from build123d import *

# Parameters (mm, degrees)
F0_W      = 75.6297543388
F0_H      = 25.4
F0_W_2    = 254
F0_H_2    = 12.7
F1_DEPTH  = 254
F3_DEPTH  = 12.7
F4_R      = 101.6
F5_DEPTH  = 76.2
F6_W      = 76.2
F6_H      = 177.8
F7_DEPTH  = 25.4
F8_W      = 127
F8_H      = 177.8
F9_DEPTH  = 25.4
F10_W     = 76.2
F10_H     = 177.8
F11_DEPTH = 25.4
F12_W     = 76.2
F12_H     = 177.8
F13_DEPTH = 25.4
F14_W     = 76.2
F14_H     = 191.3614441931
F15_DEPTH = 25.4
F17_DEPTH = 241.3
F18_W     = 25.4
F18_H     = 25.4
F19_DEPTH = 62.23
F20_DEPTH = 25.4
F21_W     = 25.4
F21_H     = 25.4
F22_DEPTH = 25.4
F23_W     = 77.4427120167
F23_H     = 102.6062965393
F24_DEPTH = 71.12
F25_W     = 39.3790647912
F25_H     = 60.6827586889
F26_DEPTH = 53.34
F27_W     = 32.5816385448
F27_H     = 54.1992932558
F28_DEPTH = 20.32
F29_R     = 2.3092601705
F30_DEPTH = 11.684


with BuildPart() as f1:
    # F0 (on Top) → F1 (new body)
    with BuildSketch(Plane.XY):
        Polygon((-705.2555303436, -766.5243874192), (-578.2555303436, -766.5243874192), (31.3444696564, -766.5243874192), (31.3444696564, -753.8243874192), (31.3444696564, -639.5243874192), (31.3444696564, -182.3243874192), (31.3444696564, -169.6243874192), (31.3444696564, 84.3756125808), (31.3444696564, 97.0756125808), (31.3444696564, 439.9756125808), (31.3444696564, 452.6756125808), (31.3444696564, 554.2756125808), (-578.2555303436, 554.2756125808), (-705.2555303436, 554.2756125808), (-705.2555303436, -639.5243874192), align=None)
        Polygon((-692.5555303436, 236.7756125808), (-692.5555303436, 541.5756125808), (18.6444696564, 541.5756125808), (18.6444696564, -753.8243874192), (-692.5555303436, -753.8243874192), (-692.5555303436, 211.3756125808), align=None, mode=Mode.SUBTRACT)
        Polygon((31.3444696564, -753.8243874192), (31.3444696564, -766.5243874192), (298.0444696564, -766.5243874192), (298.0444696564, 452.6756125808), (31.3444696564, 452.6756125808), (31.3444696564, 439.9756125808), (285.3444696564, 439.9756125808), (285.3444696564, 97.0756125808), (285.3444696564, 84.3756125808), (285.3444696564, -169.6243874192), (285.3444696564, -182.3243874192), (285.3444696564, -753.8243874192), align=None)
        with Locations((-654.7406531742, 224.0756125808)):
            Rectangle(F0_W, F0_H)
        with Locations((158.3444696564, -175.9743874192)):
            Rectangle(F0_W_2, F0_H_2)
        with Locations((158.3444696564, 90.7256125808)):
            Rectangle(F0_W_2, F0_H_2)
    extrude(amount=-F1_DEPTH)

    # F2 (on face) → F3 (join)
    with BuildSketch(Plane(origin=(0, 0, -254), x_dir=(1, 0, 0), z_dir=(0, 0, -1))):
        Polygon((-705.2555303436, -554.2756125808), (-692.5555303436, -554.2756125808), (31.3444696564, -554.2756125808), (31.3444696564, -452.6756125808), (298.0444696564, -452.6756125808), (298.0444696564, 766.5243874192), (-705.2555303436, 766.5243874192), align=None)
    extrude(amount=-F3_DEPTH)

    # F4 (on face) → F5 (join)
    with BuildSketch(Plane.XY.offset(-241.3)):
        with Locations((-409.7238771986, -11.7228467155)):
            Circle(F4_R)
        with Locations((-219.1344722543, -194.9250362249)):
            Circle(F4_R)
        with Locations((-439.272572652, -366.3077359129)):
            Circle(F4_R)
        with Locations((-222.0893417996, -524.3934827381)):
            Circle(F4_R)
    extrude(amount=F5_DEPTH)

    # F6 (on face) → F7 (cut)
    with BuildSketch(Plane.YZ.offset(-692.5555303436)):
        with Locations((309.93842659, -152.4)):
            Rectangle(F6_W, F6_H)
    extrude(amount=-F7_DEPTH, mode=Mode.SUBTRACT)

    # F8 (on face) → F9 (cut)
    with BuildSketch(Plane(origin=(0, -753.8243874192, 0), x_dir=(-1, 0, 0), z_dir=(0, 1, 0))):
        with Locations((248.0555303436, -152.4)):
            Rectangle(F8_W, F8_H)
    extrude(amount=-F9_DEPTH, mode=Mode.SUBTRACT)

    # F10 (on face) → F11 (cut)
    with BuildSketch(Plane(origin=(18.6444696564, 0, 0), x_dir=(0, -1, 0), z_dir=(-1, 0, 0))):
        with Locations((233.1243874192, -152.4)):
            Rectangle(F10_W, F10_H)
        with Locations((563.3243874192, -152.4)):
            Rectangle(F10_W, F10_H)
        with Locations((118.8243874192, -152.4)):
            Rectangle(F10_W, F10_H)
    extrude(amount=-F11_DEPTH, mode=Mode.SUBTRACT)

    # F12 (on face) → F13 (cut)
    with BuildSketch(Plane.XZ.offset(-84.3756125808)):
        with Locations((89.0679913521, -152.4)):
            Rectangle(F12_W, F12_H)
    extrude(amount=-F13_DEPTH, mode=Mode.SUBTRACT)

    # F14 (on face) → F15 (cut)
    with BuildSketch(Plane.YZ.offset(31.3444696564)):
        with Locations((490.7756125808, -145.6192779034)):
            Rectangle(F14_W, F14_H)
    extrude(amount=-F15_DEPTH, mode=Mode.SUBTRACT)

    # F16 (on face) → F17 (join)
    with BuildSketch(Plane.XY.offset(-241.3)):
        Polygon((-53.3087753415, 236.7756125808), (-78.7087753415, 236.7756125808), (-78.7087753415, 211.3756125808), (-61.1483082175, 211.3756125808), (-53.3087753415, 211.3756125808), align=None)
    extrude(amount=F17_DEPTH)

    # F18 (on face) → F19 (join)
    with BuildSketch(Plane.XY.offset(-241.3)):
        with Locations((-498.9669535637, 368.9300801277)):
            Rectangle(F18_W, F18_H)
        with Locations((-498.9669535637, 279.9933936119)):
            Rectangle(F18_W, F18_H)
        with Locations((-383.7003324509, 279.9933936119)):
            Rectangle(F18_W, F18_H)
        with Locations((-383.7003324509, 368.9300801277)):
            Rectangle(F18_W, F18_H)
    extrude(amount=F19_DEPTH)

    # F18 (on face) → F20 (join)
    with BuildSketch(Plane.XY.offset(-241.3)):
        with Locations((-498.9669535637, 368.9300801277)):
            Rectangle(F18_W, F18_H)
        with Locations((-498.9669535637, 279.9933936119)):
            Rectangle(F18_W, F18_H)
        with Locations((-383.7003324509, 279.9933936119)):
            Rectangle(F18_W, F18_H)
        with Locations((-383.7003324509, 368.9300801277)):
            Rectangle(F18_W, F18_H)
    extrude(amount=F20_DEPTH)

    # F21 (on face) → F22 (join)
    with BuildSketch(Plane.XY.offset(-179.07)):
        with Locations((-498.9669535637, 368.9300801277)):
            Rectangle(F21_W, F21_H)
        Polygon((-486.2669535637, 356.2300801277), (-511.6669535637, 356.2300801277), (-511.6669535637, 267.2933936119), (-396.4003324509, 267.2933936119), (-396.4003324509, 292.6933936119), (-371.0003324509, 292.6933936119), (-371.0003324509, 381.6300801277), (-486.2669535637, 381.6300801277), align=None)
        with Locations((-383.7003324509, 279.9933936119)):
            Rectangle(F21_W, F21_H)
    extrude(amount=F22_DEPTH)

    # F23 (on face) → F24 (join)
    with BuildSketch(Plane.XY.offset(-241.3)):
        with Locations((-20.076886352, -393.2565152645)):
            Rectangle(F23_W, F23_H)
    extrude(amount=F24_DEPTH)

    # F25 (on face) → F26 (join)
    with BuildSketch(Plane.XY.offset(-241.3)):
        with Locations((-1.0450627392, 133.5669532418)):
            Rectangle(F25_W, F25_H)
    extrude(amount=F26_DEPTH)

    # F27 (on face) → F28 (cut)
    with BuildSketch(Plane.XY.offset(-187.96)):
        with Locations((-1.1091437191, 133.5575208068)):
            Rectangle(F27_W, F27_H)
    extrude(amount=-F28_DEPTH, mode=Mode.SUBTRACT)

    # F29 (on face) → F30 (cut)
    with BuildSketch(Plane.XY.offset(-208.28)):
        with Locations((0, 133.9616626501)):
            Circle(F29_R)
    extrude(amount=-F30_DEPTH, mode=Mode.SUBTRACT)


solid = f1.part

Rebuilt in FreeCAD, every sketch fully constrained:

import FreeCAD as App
import Part
import Sketcher
from FreeCAD import Vector
Q = App.Units.Quantity


def add_polygon(sketch, points):
    """Adds a closed chain of lines whose ends are joined by coincident constraints."""
    first, n = sketch.GeometryCount, len(points)
    for a, b in zip(points, points[1:] + points[:1]):
        sketch.addGeometry(Part.LineSegment(App.Vector(*a, 0), App.Vector(*b, 0)), False)
    for i in range(n):
        sketch.addConstraint(Sketcher.Constraint("Coincident", first + i, 2, first + (i + 1) % n, 1))

doc = App.newDocument("Part")
body = doc.addObject("PartDesign::Body", "Body")

# Sketch on XY plane
sketch1 = body.newObject("Sketcher::SketchObject", "Sketch")
sketch1.AttachmentSupport = (doc.getObject("XY_Plane"), [""])
sketch1.MapMode = "FlatFace"
add_polygon(sketch1, [(-705.25553, -766.524387), (298.04447, -766.524387), (298.04447, 452.675613), (31.34447, 452.675613), (31.34447, 554.275613), (-705.25553, 554.275613)])  # lines 0-5
add_polygon(sketch1, [(31.34447, -753.824387), (31.34447, -182.324387), (285.34447, -182.324387), (285.34447, -753.824387)])  # lines 6-9
add_polygon(sketch1, [(31.34447, -169.624387), (31.34447, 84.375613), (285.34447, 84.375613), (285.34447, -169.624387)])  # lines 10-13
add_polygon(sketch1, [(31.34447, 97.075613), (31.34447, 439.975613), (285.34447, 439.975613), (285.34447, 97.075613)])  # lines 14-17
add_polygon(sketch1, [(-692.55553, -753.824387), (-692.55553, 211.375613), (-616.925776, 211.375613), (-616.925776, 236.775613), (-692.55553, 236.775613), (-692.55553, 541.575613), (18.64447, 541.575613), (18.64447, -753.824387)])  # lines 18-25
sketch1.addConstraint(Sketcher.Constraint("Horizontal", 0))
sketch1.addConstraint(Sketcher.Constraint("Vertical", 1))
sketch1.addConstraint(Sketcher.Constraint("Horizontal", 2))
sketch1.addConstraint(Sketcher.Constraint("Vertical", 3))
sketch1.addConstraint(Sketcher.Constraint("Horizontal", 4))
sketch1.addConstraint(Sketcher.Constraint("Vertical", 5))
sketch1.addConstraint(Sketcher.Constraint("Vertical", 6))
sketch1.addConstraint(Sketcher.Constraint("Horizontal", 7))
sketch1.addConstraint(Sketcher.Constraint("Vertical", 8))
sketch1.addConstraint(Sketcher.Constraint("Horizontal", 9))
sketch1.addConstraint(Sketcher.Constraint("Vertical", 10))
sketch1.addConstraint(Sketcher.Constraint("Horizontal", 11))
sketch1.addConstraint(Sketcher.Constraint("Vertical", 12))
sketch1.addConstraint(Sketcher.Constraint("Horizontal", 13))
sketch1.addConstraint(Sketcher.Constraint("Vertical", 14))
sketch1.addConstraint(Sketcher.Constraint("Horizontal", 15))
sketch1.addConstraint(Sketcher.Constraint("Vertical", 16))
sketch1.addConstraint(Sketcher.Constraint("Horizontal", 17))
sketch1.addConstraint(Sketcher.Constraint("Vertical", 18))
sketch1.addConstraint(Sketcher.Constraint("Horizontal", 19))
sketch1.addConstraint(Sketcher.Constraint("Vertical", 20))
sketch1.addConstraint(Sketcher.Constraint("Horizontal", 21))
sketch1.addConstraint(Sketcher.Constraint("Vertical", 22))
sketch1.addConstraint(Sketcher.Constraint("Horizontal", 23))
sketch1.addConstraint(Sketcher.Constraint("Vertical", 24))
sketch1.addConstraint(Sketcher.Constraint("Horizontal", 25))
sketch1.addConstraint(Sketcher.Constraint("Horizontal", 9, 2, 24, 2))
sketch1.addConstraint(Sketcher.Constraint("Vertical", 3, 2, 6, 2))
sketch1.addConstraint(Sketcher.Constraint("Vertical", 9, 2, 10, 2))
sketch1.addConstraint(Sketcher.Constraint("Vertical", 8, 2, 11, 2))
sketch1.addConstraint(Sketcher.Constraint("Vertical", 13, 2, 14, 2))
sketch1.addConstraint(Sketcher.Constraint("Vertical", 12, 2, 15, 2))
sketch1.addConstraint(Sketcher.Constraint("Vertical", 18, 2, 21, 2))
sketch1.addConstraint(Sketcher.Constraint("Equal", 17, 10))
sketch1.addConstraint(Sketcher.Constraint("DistanceX", 4, 2, 4, 1, Q("29 in")))
sketch1.addConstraint(Sketcher.Constraint("DistanceX", 7, 1, 7, 2, Q("10 in")))
sketch1.addConstraint(Sketcher.Constraint("DistanceX", 23, 1, 23, 2, Q("28 in")))
sketch1.addConstraint(Sketcher.Constraint("DistanceY", 1, 1, 1, 2, Q("48 in")))
sketch1.addConstraint(Sketcher.Constraint("DistanceY", 3, 1, 3, 2, Q("4 in")))
sketch1.addConstraint(Sketcher.Constraint("DistanceY", 18, 1, 18, 2, Q("38 in")))
sketch1.addConstraint(Sketcher.Constraint("DistanceY", 20, 1, 20, 2, Q("1 in")))
sketch1.addConstraint(Sketcher.Constraint("DistanceY", 22, 1, 22, 2, Q("12 in")))
sketch1.addConstraint(Sketcher.Constraint("DistanceX", 0, 1, 0, 2, Q("39.5 in")))
sketch1.addConstraint(Sketcher.Constraint("DistanceY", 6, 1, 6, 2, Q("22.5 in")))
sketch1.addConstraint(Sketcher.Constraint("DistanceY", 14, 1, 14, 2, Q("13.5 in")))
sketch1.addConstraint(Sketcher.Constraint("DistanceY", 6, 2, 2, 2, Q("25 in")))
sketch1.addConstraint(Sketcher.Constraint("DistanceY", 8, 2, 12, 2, Q("23 in")))
sketch1.addConstraint(Sketcher.Constraint("DistanceY", 10, 2, 14, 2, Q("14 in")))
sketch1.addConstraint(Sketcher.Constraint("DistanceX", 23, 2, 1, 2, Q("11 in")))
sketch1.addConstraint(Sketcher.Constraint("DistanceX", 19, 1, 19, 2, Q("75.629754 mm")))
sketch1.addConstraint(Sketcher.Constraint("DistanceX", -1, 1, 0, 2, Q("298.04447 mm")))
sketch1.addConstraint(Sketcher.Constraint("DistanceY", 0, 2, -1, 1, Q("766.524387 mm")))
pad1 = body.newObject("PartDesign::Pad", "Pad")
pad1.Profile = sketch1
pad1.Length = Q("10 in")
pad1.Reversed = True

# Sketch on XY plane
sketch2 = body.newObject("Sketcher::SketchObject", "Sketch001")
sketch2.AttachmentSupport = (doc.getObject("XY_Plane"), [""])
sketch2.MapMode = "FlatFace"
sketch2.AttachmentOffset = App.Placement(Vector(0, 0, -10 * 25.4), App.Rotation())
add_polygon(sketch2, [(-705.25553, 554.275613), (31.34447, 554.275613), (31.34447, 452.675613), (298.04447, 452.675613), (298.04447, -766.524387), (-705.25553, -766.524387)])  # lines 0-5
sketch2.addConstraint(Sketcher.Constraint("Horizontal", 0))
sketch2.addConstraint(Sketcher.Constraint("Vertical", 1))
sketch2.addConstraint(Sketcher.Constraint("Horizontal", 2))
sketch2.addConstraint(Sketcher.Constraint("Vertical", 3))
sketch2.addConstraint(Sketcher.Constraint("Horizontal", 4))
sketch2.addConstraint(Sketcher.Constraint("Vertical", 5))
sketch2.addConstraint(Sketcher.Constraint("DistanceX", 0, 1, 0, 2, Q("29 in")))
sketch2.addConstraint(Sketcher.Constraint("DistanceY", 1, 2, 1, 1, Q("4 in")))
sketch2.addConstraint(Sketcher.Constraint("DistanceY", 3, 2, 3, 1, Q("48 in")))
sketch2.addConstraint(Sketcher.Constraint("DistanceX", 2, 1, 2, 2, Q("10.5 in")))
sketch2.addConstraint(Sketcher.Constraint("DistanceX", -1, 1, 0, 2, Q("31.34447 mm")))
sketch2.addConstraint(Sketcher.Constraint("DistanceY", -1, 1, 0, 2, Q("554.275613 mm")))
pad2 = body.newObject("PartDesign::Pad", "Pad001")
pad2.Profile = sketch2
pad2.Length = Q("0.5 in")

# Sketch on XY plane
sketch3 = body.newObject("Sketcher::SketchObject", "Sketch002")
sketch3.AttachmentSupport = (doc.getObject("XY_Plane"), [""])
sketch3.MapMode = "FlatFace"
sketch3.AttachmentOffset = App.Placement(Vector(0, 0, -9.5 * 25.4), App.Rotation())
sketch3.addGeometry(Part.Circle(Vector(-409.723877, -11.722847, 0), Vector(0, 0, 1), 101.6), False)
sketch3.addGeometry(Part.Circle(Vector(-219.134472, -194.925036, 0), Vector(0, 0, 1), 101.6), False)
sketch3.addGeometry(Part.Circle(Vector(-439.272573, -366.307736, 0), Vector(0, 0, 1), 101.6), False)
sketch3.addGeometry(Part.Circle(Vector(-222.089342, -524.393483, 0), Vector(0, 0, 1), 101.6), False)
sketch3.addConstraint(Sketcher.Constraint("Equal", 0, 1))
sketch3.addConstraint(Sketcher.Constraint("Equal", 1, 2))
sketch3.addConstraint(Sketcher.Constraint("Equal", 2, 3))
sketch3.addConstraint(Sketcher.Constraint("Diameter", 0, Q("8 in")))
sketch3.addConstraint(Sketcher.Constraint("DistanceX", 2, 3, 1, 3, Q("220.1381 mm")))
sketch3.addConstraint(Sketcher.Constraint("DistanceY", 2, 3, 1, 3, Q("171.3827 mm")))
sketch3.addConstraint(Sketcher.Constraint("DistanceX", 3, 3, -1, 1, Q("222.089342 mm")))
sketch3.addConstraint(Sketcher.Constraint("DistanceY", 1, 3, 0, 3, Q("183.20219 mm")))
sketch3.addConstraint(Sketcher.Constraint("DistanceX", 2, 3, 3, 3, Q("217.183231 mm")))
sketch3.addConstraint(Sketcher.Constraint("DistanceX", 0, 3, -1, 1, Q("409.723877 mm")))
sketch3.addConstraint(Sketcher.Constraint("DistanceY", 0, 3, -1, 1, Q("11.722847 mm")))
sketch3.addConstraint(Sketcher.Constraint("DistanceY", 3, 3, -1, 1, Q("524.393483 mm")))
pad3 = body.newObject("PartDesign::Pad", "Pad002")
pad3.Profile = sketch3
pad3.Length = Q("3 in")

# Sketch on YZ plane
sketch4 = body.newObject("Sketcher::SketchObject", "Sketch003")
sketch4.AttachmentSupport = (doc.getObject("YZ_Plane"), [""])
sketch4.MapMode = "FlatFace"
sketch4.AttachmentOffset = App.Placement(Vector(0, 0, -692.55553), App.Rotation())
add_polygon(sketch4, [(271.838427, -63.5), (271.838427, -241.3), (348.038427, -241.3), (348.038427, -63.5)])  # lines 0-3
sketch4.addConstraint(Sketcher.Constraint("Vertical", 0))
sketch4.addConstraint(Sketcher.Constraint("Horizontal", 1))
sketch4.addConstraint(Sketcher.Constraint("Vertical", 2))
sketch4.addConstraint(Sketcher.Constraint("Horizontal", 3))
sketch4.addConstraint(Sketcher.Constraint("DistanceX", 1, 1, 1, 2, Q("3 in")))
sketch4.addConstraint(Sketcher.Constraint("DistanceY", 0, 2, 0, 1, Q("7 in")))
sketch4.addConstraint(Sketcher.Constraint("DistanceY", 0, 2, -1, 1, Q("9.5 in")))
sketch4.addConstraint(Sketcher.Constraint("DistanceX", -1, 1, 0, 2, Q("271.838427 mm")))
pocket1 = body.newObject("PartDesign::Pocket", "Pocket")
pocket1.Profile = sketch4
pocket1.Length = Q("1 in")

# Sketch on XZ plane
sketch5 = body.newObject("Sketcher::SketchObject", "Sketch004")
sketch5.AttachmentSupport = (doc.getObject("XZ_Plane"), [""])
sketch5.MapMode = "FlatFace"
sketch5.AttachmentOffset = App.Placement(Vector(0, 0, 753.824387), App.Rotation())
add_polygon(sketch5, [(-184.55553, -63.5), (-184.55553, -241.3), (-311.55553, -241.3), (-311.55553, -63.5)])  # lines 0-3
sketch5.addConstraint(Sketcher.Constraint("Vertical", 0))
sketch5.addConstraint(Sketcher.Constraint("Horizontal", 1))
sketch5.addConstraint(Sketcher.Constraint("Vertical", 2))
sketch5.addConstraint(Sketcher.Constraint("Horizontal", 3))
sketch5.addConstraint(Sketcher.Constraint("DistanceX", 1, 2, 1, 1, Q("5 in")))
sketch5.addConstraint(Sketcher.Constraint("DistanceY", 0, 2, 0, 1, Q("7 in")))
sketch5.addConstraint(Sketcher.Constraint("DistanceY", 0, 2, -1, 1, Q("9.5 in")))
sketch5.addConstraint(Sketcher.Constraint("DistanceX", 0, 2, -1, 1, Q("184.55553 mm")))
pocket2 = body.newObject("PartDesign::Pocket", "Pocket001")
pocket2.Profile = sketch5
pocket2.Length = Q("1 in")
pocket2.Reversed = True

# Sketch on YZ plane
sketch6 = body.newObject("Sketcher::SketchObject", "Sketch005")
sketch6.AttachmentSupport = (doc.getObject("YZ_Plane"), [""])
sketch6.MapMode = "FlatFace"
sketch6.AttachmentOffset = App.Placement(Vector(0, 0, 18.64447), App.Rotation())
add_polygon(sketch6, [(-195.024387, -63.5), (-195.024387, -241.3), (-271.224387, -241.3), (-271.224387, -63.5)])  # lines 0-3
add_polygon(sketch6, [(-525.224387, -63.5), (-525.224387, -241.3), (-601.424387, -241.3), (-601.424387, -63.5)])  # lines 4-7
add_polygon(sketch6, [(-80.724387, -63.5), (-80.724387, -241.3), (-156.924387, -241.3), (-156.924387, -63.5)])  # lines 8-11
sketch6.addConstraint(Sketcher.Constraint("Vertical", 0))
sketch6.addConstraint(Sketcher.Constraint("Horizontal", 1))
sketch6.addConstraint(Sketcher.Constraint("Vertical", 2))
sketch6.addConstraint(Sketcher.Constraint("Horizontal", 3))
sketch6.addConstraint(Sketcher.Constraint("Vertical", 4))
sketch6.addConstraint(Sketcher.Constraint("Horizontal", 5))
sketch6.addConstraint(Sketcher.Constraint("Vertical", 6))
sketch6.addConstraint(Sketcher.Constraint("Horizontal", 7))
sketch6.addConstraint(Sketcher.Constraint("Vertical", 8))
sketch6.addConstraint(Sketcher.Constraint("Horizontal", 9))
sketch6.addConstraint(Sketcher.Constraint("Vertical", 10))
sketch6.addConstraint(Sketcher.Constraint("Horizontal", 11))
sketch6.addConstraint(Sketcher.Constraint("Horizontal", 1, 2, 4, 2))
sketch6.addConstraint(Sketcher.Constraint("Horizontal", 3, 2, 6, 2))
sketch6.addConstraint(Sketcher.Constraint("Horizontal", 5, 2, 8, 2))
sketch6.addConstraint(Sketcher.Constraint("Horizontal", 7, 2, 10, 2))
sketch6.addConstraint(Sketcher.Constraint("Equal", 3, 5))
sketch6.addConstraint(Sketcher.Constraint("Equal", 7, 9))
sketch6.addConstraint(Sketcher.Constraint("DistanceX", 1, 2, 1, 1, Q("3 in")))
sketch6.addConstraint(Sketcher.Constraint("DistanceY", 0, 2, 0, 1, Q("7 in")))
sketch6.addConstraint(Sketcher.Constraint("DistanceX", 4, 2, 1, 2, Q("10 in")))
sketch6.addConstraint(Sketcher.Constraint("DistanceY", 0, 2, -1, 1, Q("9.5 in")))
sketch6.addConstraint(Sketcher.Constraint("DistanceX", 0, 2, 8, 2, Q("4.5 in")))
sketch6.addConstraint(Sketcher.Constraint("DistanceX", 0, 2, -1, 1, Q("195.024387 mm")))
pocket3 = body.newObject("PartDesign::Pocket", "Pocket002")
pocket3.Profile = sketch6
pocket3.Length = Q("1 in")
pocket3.Reversed = True

# Sketch on XZ plane
sketch7 = body.newObject("Sketcher::SketchObject", "Sketch006")
sketch7.AttachmentSupport = (doc.getObject("XZ_Plane"), [""])
sketch7.MapMode = "FlatFace"
sketch7.AttachmentOffset = App.Placement(Vector(0, 0, -84.375613), App.Rotation())
add_polygon(sketch7, [(50.967991, -63.5), (50.967991, -241.3), (127.167991, -241.3), (127.167991, -63.5)])  # lines 0-3
sketch7.addConstraint(Sketcher.Constraint("Vertical", 0))
sketch7.addConstraint(Sketcher.Constraint("Horizontal", 1))
sketch7.addConstraint(Sketcher.Constraint("Vertical", 2))
sketch7.addConstraint(Sketcher.Constraint("Horizontal", 3))
sketch7.addConstraint(Sketcher.Constraint("DistanceX", 1, 1, 1, 2, Q("3 in")))
sketch7.addConstraint(Sketcher.Constraint("DistanceY", 0, 2, 0, 1, Q("7 in")))
sketch7.addConstraint(Sketcher.Constraint("DistanceY", 0, 2, -1, 1, Q("9.5 in")))
sketch7.addConstraint(Sketcher.Constraint("DistanceX", -1, 1, 0, 2, Q("50.967991 mm")))
pocket4 = body.newObject("PartDesign::Pocket", "Pocket003")
pocket4.Profile = sketch7
pocket4.Length = Q("1 in")

# Sketch on YZ plane
sketch8 = body.newObject("Sketcher::SketchObject", "Sketch007")
sketch8.AttachmentSupport = (doc.getObject("YZ_Plane"), [""])
sketch8.MapMode = "FlatFace"
sketch8.AttachmentOffset = App.Placement(Vector(0, 0, 31.34447), App.Rotation())
add_polygon(sketch8, [(452.675613, -49.938556), (452.675613, -241.3), (528.875613, -241.3), (528.875613, -49.938556)])  # lines 0-3
sketch8.addConstraint(Sketcher.Constraint("Vertical", 0))
sketch8.addConstraint(Sketcher.Constraint("Horizontal", 1))
sketch8.addConstraint(Sketcher.Constraint("Vertical", 2))
sketch8.addConstraint(Sketcher.Constraint("Horizontal", 3))
sketch8.addConstraint(Sketcher.Constraint("DistanceX", 1, 1, 1, 2, Q("3 in")))
sketch8.addConstraint(Sketcher.Constraint("DistanceY", 0, 2, -1, 1, Q("9.5 in")))
sketch8.addConstraint(Sketcher.Constraint("DistanceY", 0, 2, 0, 1, Q("191.361444 mm")))
sketch8.addConstraint(Sketcher.Constraint("DistanceX", -1, 1, 0, 2, Q("452.675613 mm")))
pocket5 = body.newObject("PartDesign::Pocket", "Pocket004")
pocket5.Profile = sketch8
pocket5.Length = Q("1 in")

# Sketch on XY plane
sketch9 = body.newObject("Sketcher::SketchObject", "Sketch008")
sketch9.AttachmentSupport = (doc.getObject("XY_Plane"), [""])
sketch9.MapMode = "FlatFace"
sketch9.AttachmentOffset = App.Placement(Vector(0, 0, -9.5 * 25.4), App.Rotation())
add_polygon(sketch9, [(-53.308775, 236.775613), (-78.708775, 236.775613), (-78.708775, 211.375613), (-53.308775, 211.375613)])  # lines 0-3
sketch9.addConstraint(Sketcher.Constraint("Horizontal", 0))
sketch9.addConstraint(Sketcher.Constraint("Vertical", 1))
sketch9.addConstraint(Sketcher.Constraint("Horizontal", 2))
sketch9.addConstraint(Sketcher.Constraint("Vertical", 3))
sketch9.addConstraint(Sketcher.Constraint("Equal", 2, 1))
sketch9.addConstraint(Sketcher.Constraint("DistanceX", 0, 2, 0, 1, Q("1 in")))
sketch9.addConstraint(Sketcher.Constraint("DistanceX", 0, 2, -1, 1, Q("78.708775 mm")))
sketch9.addConstraint(Sketcher.Constraint("DistanceY", -1, 1, 0, 2, Q("236.775613 mm")))
pad4 = body.newObject("PartDesign::Pad", "Pad003")
pad4.Profile = sketch9
pad4.Length = Q("9.5 in")

# Sketch on XY plane
sketch10 = body.newObject("Sketcher::SketchObject", "Sketch009")
sketch10.AttachmentSupport = (doc.getObject("XY_Plane"), [""])
sketch10.MapMode = "FlatFace"
sketch10.AttachmentOffset = App.Placement(Vector(0, 0, -9.5 * 25.4), App.Rotation())
add_polygon(sketch10, [(-511.666954, 381.63008), (-511.666954, 356.23008), (-486.266954, 356.23008), (-486.266954, 381.63008)])  # lines 0-3
add_polygon(sketch10, [(-511.666954, 292.693394), (-511.666954, 267.293394), (-486.266954, 267.293394), (-486.266954, 292.693394)])  # lines 4-7
add_polygon(sketch10, [(-396.400332, 292.693394), (-396.400332, 267.293394), (-371.000332, 267.293394), (-371.000332, 292.693394)])  # lines 8-11
add_polygon(sketch10, [(-396.400332, 381.63008), (-396.400332, 356.23008), (-371.000332, 356.23008), (-371.000332, 381.63008)])  # lines 12-15
sketch10.addConstraint(Sketcher.Constraint("Vertical", 0))
sketch10.addConstraint(Sketcher.Constraint("Horizontal", 1))
sketch10.addConstraint(Sketcher.Constraint("Vertical", 2))
sketch10.addConstraint(Sketcher.Constraint("Horizontal", 3))
sketch10.addConstraint(Sketcher.Constraint("Vertical", 4))
sketch10.addConstraint(Sketcher.Constraint("Horizontal", 5))
sketch10.addConstraint(Sketcher.Constraint("Vertical", 6))
sketch10.addConstraint(Sketcher.Constraint("Horizontal", 7))
sketch10.addConstraint(Sketcher.Constraint("Vertical", 8))
sketch10.addConstraint(Sketcher.Constraint("Horizontal", 9))
sketch10.addConstraint(Sketcher.Constraint("Vertical", 10))
sketch10.addConstraint(Sketcher.Constraint("Horizontal", 11))
sketch10.addConstraint(Sketcher.Constraint("Vertical", 12))
sketch10.addConstraint(Sketcher.Constraint("Horizontal", 13))
sketch10.addConstraint(Sketcher.Constraint("Vertical", 14))
sketch10.addConstraint(Sketcher.Constraint("Horizontal", 15))
sketch10.addConstraint(Sketcher.Constraint("Horizontal", 5, 2, 8, 2))
sketch10.addConstraint(Sketcher.Constraint("Horizontal", 7, 2, 10, 2))
sketch10.addConstraint(Sketcher.Constraint("Horizontal", 1, 2, 12, 2))
sketch10.addConstraint(Sketcher.Constraint("Horizontal", 3, 2, 14, 2))
sketch10.addConstraint(Sketcher.Constraint("Vertical", 3, 2, 4, 2))
sketch10.addConstraint(Sketcher.Constraint("Vertical", 2, 2, 5, 2))
sketch10.addConstraint(Sketcher.Constraint("Vertical", 11, 2, 12, 2))
sketch10.addConstraint(Sketcher.Constraint("Vertical", 10, 2, 13, 2))
sketch10.addConstraint(Sketcher.Constraint("Equal", 7, 9))
sketch10.addConstraint(Sketcher.Constraint("Equal", 15, 0))
sketch10.addConstraint(Sketcher.Constraint("Equal", 2, 4))
sketch10.addConstraint(Sketcher.Constraint("DistanceX", 1, 1, 1, 2, Q("1 in")))
sketch10.addConstraint(Sketcher.Constraint("DistanceY", -1, 1, 0, 2, Q("356.23008 mm")))
sketch10.addConstraint(Sketcher.Constraint("DistanceX", 5, 2, 8, 2, Q("89.866621 mm")))
sketch10.addConstraint(Sketcher.Constraint("DistanceX", 0, 2, -1, 1, Q("511.666954 mm")))
sketch10.addConstraint(Sketcher.Constraint("DistanceY", -1, 1, 4, 2, Q("267.293394 mm")))
pad5 = body.newObject("PartDesign::Pad", "Pad004")
pad5.Profile = sketch10
pad5.Length = Q("2.45 in")

# Sketch on XY plane
sketch11 = body.newObject("Sketcher::SketchObject", "Sketch010")
sketch11.AttachmentSupport = (doc.getObject("XY_Plane"), [""])
sketch11.MapMode = "FlatFace"
sketch11.AttachmentOffset = App.Placement(Vector(0, 0, -9.5 * 25.4), App.Rotation())
add_polygon(sketch11, [(-511.666954, 381.63008), (-511.666954, 356.23008), (-486.266954, 356.23008), (-486.266954, 381.63008)])  # lines 0-3
add_polygon(sketch11, [(-511.666954, 292.693394), (-511.666954, 267.293394), (-486.266954, 267.293394), (-486.266954, 292.693394)])  # lines 4-7
add_polygon(sketch11, [(-396.400332, 292.693394), (-396.400332, 267.293394), (-371.000332, 267.293394), (-371.000332, 292.693394)])  # lines 8-11
add_polygon(sketch11, [(-396.400332, 381.63008), (-396.400332, 356.23008), (-371.000332, 356.23008), (-371.000332, 381.63008)])  # lines 12-15
sketch11.addConstraint(Sketcher.Constraint("Vertical", 0))
sketch11.addConstraint(Sketcher.Constraint("Horizontal", 1))
sketch11.addConstraint(Sketcher.Constraint("Vertical", 2))
sketch11.addConstraint(Sketcher.Constraint("Horizontal", 3))
sketch11.addConstraint(Sketcher.Constraint("Vertical", 4))
sketch11.addConstraint(Sketcher.Constraint("Horizontal", 5))
sketch11.addConstraint(Sketcher.Constraint("Vertical", 6))
sketch11.addConstraint(Sketcher.Constraint("Horizontal", 7))
sketch11.addConstraint(Sketcher.Constraint("Vertical", 8))
sketch11.addConstraint(Sketcher.Constraint("Horizontal", 9))
sketch11.addConstraint(Sketcher.Constraint("Vertical", 10))
sketch11.addConstraint(Sketcher.Constraint("Horizontal", 11))
sketch11.addConstraint(Sketcher.Constraint("Vertical", 12))
sketch11.addConstraint(Sketcher.Constraint("Horizontal", 13))
sketch11.addConstraint(Sketcher.Constraint("Vertical", 14))
sketch11.addConstraint(Sketcher.Constraint("Horizontal", 15))
sketch11.addConstraint(Sketcher.Constraint("Horizontal", 5, 2, 8, 2))
sketch11.addConstraint(Sketcher.Constraint("Horizontal", 7, 2, 10, 2))
sketch11.addConstraint(Sketcher.Constraint("Horizontal", 1, 2, 12, 2))
sketch11.addConstraint(Sketcher.Constraint("Horizontal", 3, 2, 14, 2))
sketch11.addConstraint(Sketcher.Constraint("Vertical", 3, 2, 4, 2))
sketch11.addConstraint(Sketcher.Constraint("Vertical", 2, 2, 5, 2))
sketch11.addConstraint(Sketcher.Constraint("Vertical", 11, 2, 12, 2))
sketch11.addConstraint(Sketcher.Constraint("Vertical", 10, 2, 13, 2))
sketch11.addConstraint(Sketcher.Constraint("Equal", 7, 9))
sketch11.addConstraint(Sketcher.Constraint("Equal", 15, 0))
sketch11.addConstraint(Sketcher.Constraint("Equal", 2, 4))
sketch11.addConstraint(Sketcher.Constraint("DistanceX", 1, 1, 1, 2, Q("1 in")))
sketch11.addConstraint(Sketcher.Constraint("DistanceY", -1, 1, 0, 2, Q("356.23008 mm")))
sketch11.addConstraint(Sketcher.Constraint("DistanceX", 5, 2, 8, 2, Q("89.866621 mm")))
sketch11.addConstraint(Sketcher.Constraint("DistanceX", 0, 2, -1, 1, Q("511.666954 mm")))
sketch11.addConstraint(Sketcher.Constraint("DistanceY", -1, 1, 4, 2, Q("267.293394 mm")))
pad6 = body.newObject("PartDesign::Pad", "Pad005")
pad6.Profile = sketch11
pad6.Length = Q("1 in")

# Sketch on XY plane
sketch12 = body.newObject("Sketcher::SketchObject", "Sketch011")
sketch12.AttachmentSupport = (doc.getObject("XY_Plane"), [""])
sketch12.MapMode = "FlatFace"
sketch12.AttachmentOffset = App.Placement(Vector(0, 0, -7.05 * 25.4), App.Rotation())
add_polygon(sketch12, [(-511.666954, 381.63008), (-511.666954, 267.293394), (-371.000332, 267.293394), (-371.000332, 381.63008)])  # lines 0-3
sketch12.addConstraint(Sketcher.Constraint("Vertical", 0))
sketch12.addConstraint(Sketcher.Constraint("Horizontal", 1))
sketch12.addConstraint(Sketcher.Constraint("Vertical", 2))
sketch12.addConstraint(Sketcher.Constraint("Horizontal", 3))
sketch12.addConstraint(Sketcher.Constraint("DistanceX", 1, 1, 1, 2, Q("140.666621 mm")))
sketch12.addConstraint(Sketcher.Constraint("DistanceY", 0, 2, 0, 1, Q("114.336687 mm")))
sketch12.addConstraint(Sketcher.Constraint("DistanceY", -1, 1, 2, 2, Q("381.63008 mm")))
sketch12.addConstraint(Sketcher.Constraint("DistanceX", 0, 2, -1, 1, Q("511.666954 mm")))
pad7 = body.newObject("PartDesign::Pad", "Pad006")
pad7.Profile = sketch12
pad7.Length = Q("1 in")

# Sketch on XY plane
sketch13 = body.newObject("Sketcher::SketchObject", "Sketch012")
sketch13.AttachmentSupport = (doc.getObject("XY_Plane"), [""])
sketch13.MapMode = "FlatFace"
sketch13.AttachmentOffset = App.Placement(Vector(0, 0, -9.5 * 25.4), App.Rotation())
add_polygon(sketch13, [(-58.798242, -341.953367), (-58.798242, -444.559664), (18.64447, -444.559664), (18.64447, -341.953367)])  # lines 0-3
sketch13.addConstraint(Sketcher.Constraint("Vertical", 0))
sketch13.addConstraint(Sketcher.Constraint("Horizontal", 1))
sketch13.addConstraint(Sketcher.Constraint("Vertical", 2))
sketch13.addConstraint(Sketcher.Constraint("Horizontal", 3))
sketch13.addConstraint(Sketcher.Constraint("DistanceX", 1, 1, 1, 2, Q("77.442712 mm")))
sketch13.addConstraint(Sketcher.Constraint("DistanceY", 0, 2, 0, 1, Q("102.606297 mm")))
sketch13.addConstraint(Sketcher.Constraint("DistanceX", -1, 1, 1, 2, Q("18.64447 mm")))
sketch13.addConstraint(Sketcher.Constraint("DistanceY", 0, 2, -1, 1, Q("444.559664 mm")))
pad8 = body.newObject("PartDesign::Pad", "Pad007")
pad8.Profile = sketch13
pad8.Length = Q("2.8 in")

# Sketch on XY plane
sketch14 = body.newObject("Sketcher::SketchObject", "Sketch013")
sketch14.AttachmentSupport = (doc.getObject("XY_Plane"), [""])
sketch14.MapMode = "FlatFace"
sketch14.AttachmentOffset = App.Placement(Vector(0, 0, -9.5 * 25.4), App.Rotation())
add_polygon(sketch14, [(-20.734595, 163.908333), (-20.734595, 103.225574), (18.64447, 103.225574), (18.64447, 163.908333)])  # lines 0-3
sketch14.addConstraint(Sketcher.Constraint("Vertical", 0))
sketch14.addConstraint(Sketcher.Constraint("Horizontal", 1))
sketch14.addConstraint(Sketcher.Constraint("Vertical", 2))
sketch14.addConstraint(Sketcher.Constraint("Horizontal", 3))
sketch14.addConstraint(Sketcher.Constraint("DistanceY", 0, 2, 0, 1, Q("60.682759 mm")))
sketch14.addConstraint(Sketcher.Constraint("DistanceX", 1, 1, 1, 2, Q("39.379065 mm")))
sketch14.addConstraint(Sketcher.Constraint("DistanceX", -1, 1, 1, 2, Q("18.64447 mm")))
sketch14.addConstraint(Sketcher.Constraint("DistanceY", -1, 1, 0, 2, Q("103.225574 mm")))
pad9 = body.newObject("PartDesign::Pad", "Pad008")
pad9.Profile = sketch14
pad9.Length = Q("2.1 in")

# Sketch on XY plane
sketch15 = body.newObject("Sketcher::SketchObject", "Sketch014")
sketch15.AttachmentSupport = (doc.getObject("XY_Plane"), [""])
sketch15.MapMode = "FlatFace"
sketch15.AttachmentOffset = App.Placement(Vector(0, 0, -7.4 * 25.4), App.Rotation())
add_polygon(sketch15, [(-17.399963, 160.657167), (-17.399963, 106.457874), (15.181676, 106.457874), (15.181676, 160.657167)])  # lines 0-3
sketch15.addConstraint(Sketcher.Constraint("Vertical", 0))
sketch15.addConstraint(Sketcher.Constraint("Horizontal", 1))
sketch15.addConstraint(Sketcher.Constraint("Vertical", 2))
sketch15.addConstraint(Sketcher.Constraint("Horizontal", 3))
sketch15.addConstraint(Sketcher.Constraint("DistanceX", 1, 1, 1, 2, Q("32.581639 mm")))
sketch15.addConstraint(Sketcher.Constraint("DistanceY", 0, 2, 0, 1, Q("54.199293 mm")))
sketch15.addConstraint(Sketcher.Constraint("DistanceX", 0, 2, -1, 1, Q("17.399963 mm")))
sketch15.addConstraint(Sketcher.Constraint("DistanceY", -1, 1, 0, 2, Q("106.457874 mm")))
pocket6 = body.newObject("PartDesign::Pocket", "Pocket005")
pocket6.Profile = sketch15
pocket6.Length = Q("0.8 in")

# Sketch on XY plane
sketch16 = body.newObject("Sketcher::SketchObject", "Sketch015")
sketch16.AttachmentSupport = (doc.getObject("XY_Plane"), [""])
sketch16.MapMode = "FlatFace"
sketch16.AttachmentOffset = App.Placement(Vector(0, 0, -8.2 * 25.4), App.Rotation())
sketch16.addGeometry(Part.Circle(Vector(0, 133.961663, 0), Vector(0, 0, 1), 2.30926), False)
sketch16.addConstraint(Sketcher.Constraint("PointOnObject", 0, 3, -2))
sketch16.addConstraint(Sketcher.Constraint("Diameter", 0, Q("4.61852 mm")))
sketch16.addConstraint(Sketcher.Constraint("DistanceY", -1, 1, 0, 3, Q("133.961663 mm")))
pocket7 = body.newObject("PartDesign::Pocket", "Pocket006")
pocket7.Profile = sketch16
pocket7.Length = Q("0.46 in")

doc.recompute()
